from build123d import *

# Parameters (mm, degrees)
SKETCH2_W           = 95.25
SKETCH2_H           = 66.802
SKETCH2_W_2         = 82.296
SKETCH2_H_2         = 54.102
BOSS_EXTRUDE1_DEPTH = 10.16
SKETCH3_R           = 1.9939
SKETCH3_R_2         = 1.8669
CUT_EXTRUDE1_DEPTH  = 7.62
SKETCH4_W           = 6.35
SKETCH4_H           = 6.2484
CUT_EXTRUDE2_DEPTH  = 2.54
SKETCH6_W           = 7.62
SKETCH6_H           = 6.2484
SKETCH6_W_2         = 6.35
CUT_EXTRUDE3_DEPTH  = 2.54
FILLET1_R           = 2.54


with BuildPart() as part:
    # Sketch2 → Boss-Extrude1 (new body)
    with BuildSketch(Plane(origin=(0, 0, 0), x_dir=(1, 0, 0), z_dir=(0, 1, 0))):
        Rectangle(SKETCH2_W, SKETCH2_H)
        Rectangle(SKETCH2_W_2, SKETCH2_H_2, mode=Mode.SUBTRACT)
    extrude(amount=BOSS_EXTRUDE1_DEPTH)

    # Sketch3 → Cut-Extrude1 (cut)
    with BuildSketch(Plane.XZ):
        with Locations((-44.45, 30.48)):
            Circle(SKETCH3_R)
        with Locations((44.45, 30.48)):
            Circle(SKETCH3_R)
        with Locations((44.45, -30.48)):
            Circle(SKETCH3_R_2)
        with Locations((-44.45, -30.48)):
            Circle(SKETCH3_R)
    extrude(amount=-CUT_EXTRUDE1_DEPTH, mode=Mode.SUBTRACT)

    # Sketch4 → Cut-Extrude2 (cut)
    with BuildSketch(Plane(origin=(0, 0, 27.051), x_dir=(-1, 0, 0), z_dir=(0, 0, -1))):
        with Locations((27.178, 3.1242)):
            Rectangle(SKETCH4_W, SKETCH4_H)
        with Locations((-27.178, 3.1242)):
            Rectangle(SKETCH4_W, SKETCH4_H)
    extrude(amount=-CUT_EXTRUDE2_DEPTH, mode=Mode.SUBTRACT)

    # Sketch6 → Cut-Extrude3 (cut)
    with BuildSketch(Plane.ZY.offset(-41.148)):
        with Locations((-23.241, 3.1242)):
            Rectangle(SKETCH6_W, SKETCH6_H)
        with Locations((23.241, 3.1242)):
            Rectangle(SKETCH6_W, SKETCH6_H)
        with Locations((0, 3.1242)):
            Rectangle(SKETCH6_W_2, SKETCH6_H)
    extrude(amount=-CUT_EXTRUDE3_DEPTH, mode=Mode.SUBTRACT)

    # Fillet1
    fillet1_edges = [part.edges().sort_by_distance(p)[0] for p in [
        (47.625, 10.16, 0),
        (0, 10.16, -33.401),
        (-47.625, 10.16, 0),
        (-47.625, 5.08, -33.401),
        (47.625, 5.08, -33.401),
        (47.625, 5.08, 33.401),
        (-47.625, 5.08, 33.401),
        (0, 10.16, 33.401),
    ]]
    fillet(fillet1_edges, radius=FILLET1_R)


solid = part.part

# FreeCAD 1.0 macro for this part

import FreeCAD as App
import Part
import Sketcher
from FreeCAD import Vector
Q = App.Units.Quantity


def edges_at(feature, points):
    """Names of the edges that pass closest to the given points."""
    edges = feature.Shape.Edges
    near = lambda p: min(range(len(edges)), key=lambda i: edges[i].distToShape(Part.Vertex(*p))[0])
    return sorted({f"Edge{near(p) + 1}" for p in points})

doc = App.newDocument("Part")
body = doc.addObject("PartDesign::Body", "Body")

# Sketch on XZ plane
sketch1 = doc.addObject("Sketcher::SketchObject", "Sketch")
body.addObject(sketch1)
sketch1.AttachmentSupport = (doc.XZ_Plane, [""])
sketch1.MapMode = "FlatFace"
sketch1.addGeometry([
    Part.LineSegment(Vector(-48, -33, 0), Vector(-48, 33, 0)),  # 0
    Part.LineSegment(Vector(-48, 33, 0), Vector(48, 33, 0)),  # 1
    Part.LineSegment(Vector(48, 33, 0), Vector(48, -33, 0)),  # 2
    Part.LineSegment(Vector(48, -33, 0), Vector(-48, -33, 0)),  # 3
    Part.LineSegment(Vector(41, 27, 0), Vector(-41, 27, 0)),  # 4
    Part.LineSegment(Vector(-41, 27, 0), Vector(-41, -27, 0)),  # 5
    Part.LineSegment(Vector(-41, -27, 0), Vector(41, -27, 0)),  # 6
    Part.LineSegment(Vector(41, -27, 0), Vector(41, 27, 0)),  # 7
], False)
sketch1.addConstraint([
    Sketcher.Constraint("Coincident", 0, 2, 1, 1),
    Sketcher.Constraint("Coincident", 1, 2, 2, 1),
    Sketcher.Constraint("Coincident", 2, 2, 3, 1),
    Sketcher.Constraint("Coincident", 3, 2, 0, 1),
    Sketcher.Constraint("Coincident", 4, 2, 5, 1),
    Sketcher.Constraint("Coincident", 5, 2, 6, 1),
    Sketcher.Constraint("Coincident", 6, 2, 7, 1),
    Sketcher.Constraint("Coincident", 7, 2, 4, 1),
    Sketcher.Constraint("Vertical", 0),
    Sketcher.Constraint("Horizontal", 1),
    Sketcher.Constraint("Vertical", 2),
    Sketcher.Constraint("Horizontal", 3),
    Sketcher.Constraint("Horizontal", 4),
    Sketcher.Constraint("Vertical", 5),
    Sketcher.Constraint("Horizontal", 6),
    Sketcher.Constraint("Vertical", 7),
    Sketcher.Constraint("Symmetric", 0, 2, 2, 2, -1, 1),
    Sketcher.Constraint("Symmetric", 4, 2, 6, 2, -1, 1),
    Sketcher.Constraint("DistanceX", 1, 1, 1, 2, Q("3.75 in")),
    Sketcher.Constraint("DistanceX", 4, 2, 4, 1, Q("3.24 in")),
    Sketcher.Constraint("DistanceY", 0, 1, 0, 2, Q("2.63 in")),
    Sketcher.Constraint("DistanceY", 5, 2, 5, 1, Q("2.13 in")),
])
pad1 = doc.addObject("PartDesign::Pad", "Pad")
body.addObject(pad1)
pad1.Profile = sketch1
pad1.Length = Q("0.4 in")
pad1.Reversed = True

# Sketch on XZ plane
sketch2 = doc.addObject("Sketcher::SketchObject", "Sketch001")
body.addObject(sketch2)
sketch2.AttachmentSupport = (doc.XZ_Plane, [""])
sketch2.MapMode = "FlatFace"
sketch2.addGeometry([
    Part.Circle(Vector(-44.5, 30.5, 0), Vector(0, 0, 1), 2),
    Part.Circle(Vector(44.5, 30.5, 0), Vector(0, 0, 1), 2),
    Part.Circle(Vector(44.5, -30.5, 0), Vector(0, 0, 1), 1.9),
    Part.Circle(Vector(-44.5, -30.5, 0), Vector(0, 0, 1), 2),
], False)
sketch2.addConstraint([
    Sketcher.Constraint("Equal", 0, 1),
    Sketcher.Constraint("Equal", 1, 3),
    Sketcher.Constraint("Symmetric", 0, 3, 2, 3, -1, 1),
    Sketcher.Constraint("Symmetric", 1, 3, 3, 3, -1, 1),
    Sketcher.Constraint("Symmetric", 0, 3, 1, 3, -2),
    Sketcher.Constraint("Diameter", 0, Q("0.157 in")),
    Sketcher.Constraint("Diameter", 2, Q("0.147 in")),
    Sketcher.Constraint("DistanceY", -1, 1, 0, 3, Q("1.2 in")),
    Sketcher.Constraint("DistanceX", 0, 3, 1, 3, Q("3.5 in")),
])
pocket1 = doc.addObject("PartDesign::Pocket", "Pocket")
body.addObject(pocket1)
pocket1.Profile = sketch2
pocket1.Length = Q("0.3 in")

# Sketch on XY plane
sketch3 = doc.addObject("Sketcher::SketchObject", "Sketch002")
body.addObject(sketch3)
sketch3.AttachmentSupport = (doc.XY_Plane, [""])
sketch3.MapMode = "FlatFace"
sketch3.AttachmentOffset = App.Placement(Vector(0, 0, 1.065 * 25.4), App.Rotation())
sketch3.addGeometry([
    Part.LineSegment(Vector(-24, 6, 0), Vector(-24, 0, 0)),  # 0
    Part.LineSegment(Vector(-24, 0, 0), Vector(-30, 0, 0)),  # 1
    Part.LineSegment(Vector(-30, 0, 0), Vector(-30, 6, 0)),  # 2
    Part.LineSegment(Vector(-30, 6, 0), Vector(-24, 6, 0)),  # 3
    Part.LineSegment(Vector(30, 6, 0), Vector(30, 0, 0)),  # 4
    Part.LineSegment(Vector(30, 0, 0), Vector(24, 0, 0)),  # 5
    Part.LineSegment(Vector(24, 0, 0), Vector(24, 6, 0)),  # 6
    Part.LineSegment(Vector(24, 6, 0), Vector(30, 6, 0)),  # 7
], False)
sketch3.addConstraint([
    Sketcher.Constraint("Coincident", 0, 2, 1, 1),
    Sketcher.Constraint("Coincident", 1, 2, 2, 1),
    Sketcher.Constraint("Coincident", 2, 2, 3, 1),
    Sketcher.Constraint("Coincident", 3, 2, 0, 1),
    Sketcher.Constraint("Coincident", 4, 2, 5, 1),
    Sketcher.Constraint("Coincident", 5, 2, 6, 1),
    Sketcher.Constraint("Coincident", 6, 2, 7, 1),
    Sketcher.Constraint("Coincident", 7, 2, 4, 1),
    Sketcher.Constraint("Vertical", 0),
    Sketcher.Constraint("Horizontal", 1),
    Sketcher.Constraint("Vertical", 2),
    Sketcher.Constraint("Horizontal", 3),
    Sketcher.Constraint("Vertical", 4),
    Sketcher.Constraint("Horizontal", 5),
    Sketcher.Constraint("Vertical", 6),
    Sketcher.Constraint("Horizontal", 7),
    Sketcher.Constraint("Symmetric", 1, 2, 4, 2, -1, 1),
    Sketcher.Constraint("Symmetric", 0, 2, 5, 2, -2),
    Sketcher.Constraint("Horizontal", 3, 2, 6, 2),
    Sketcher.Constraint("DistanceX", 1, 2, 1, 1, Q("0.25 in")),
    Sketcher.Constraint("DistanceY", 0, 2, 0, 1, Q("0.246 in")),
    Sketcher.Constraint("DistanceX", 0, 2, 4, 2, Q("2.14 in")),
])
pocket2 = doc.addObject("PartDesign::Pocket", "Pocket001")
body.addObject(pocket2)
pocket2.Profile = sketch3
pocket2.Length = Q("0.1 in")
pocket2.Reversed = True

# Sketch on YZ plane
sketch4 = doc.addObject("Sketcher::SketchObject", "Sketch003")
body.addObject(sketch4)
sketch4.AttachmentSupport = (doc.YZ_Plane, [""])
sketch4.MapMode = "FlatFace"
sketch4.AttachmentOffset = App.Placement(Vector(0, 0, 1.62 * 25.4), App.Rotation())
sketch4.addGeometry([
    Part.LineSegment(Vector(6, -27, 0), Vector(0, -27, 0)),  # 0
    Part.LineSegment(Vector(0, -27, 0), Vector(0, -19, 0)),  # 1
    Part.LineSegment(Vector(0, -19, 0), Vector(6, -19, 0)),  # 2
    Part.LineSegment(Vector(6, -19, 0), Vector(6, -27, 0)),  # 3
    Part.LineSegment(Vector(6, 19, 0), Vector(0, 19, 0)),  # 4
    Part.LineSegment(Vector(0, 19, 0), Vector(0, 27, 0)),  # 5
    Part.LineSegment(Vector(0, 27, 0), Vector(6, 27, 0)),  # 6
    Part.LineSegment(Vector(6, 27, 0), Vector(6, 19, 0)),  # 7
    Part.LineSegment(Vector(6, -3, 0), Vector(0, -3, 0)),  # 8
    Part.LineSegment(Vector(0, -3, 0), Vector(0, 3, 0)),  # 9
    Part.LineSegment(Vector(0, 3, 0), Vector(6, 3, 0)),  # 10
    Part.LineSegment(Vector(6, 3, 0), Vector(6, -3, 0)),  # 11
], False)
sketch4.addConstraint([
    Sketcher.Constraint("Coincident", 0, 2, 1, 1),
    Sketcher.Constraint("Coincident", 1, 2, 2, 1),
    Sketcher.Constraint("Coincident", 2, 2, 3, 1),
    Sketcher.Constraint("Coincident", 3, 2, 0, 1),
    Sketcher.Constraint("Coincident", 4, 2, 5, 1),
    Sketcher.Constraint("Coincident", 5, 2, 6, 1),
    Sketcher.Constraint("Coincident", 6, 2, 7, 1),
    Sketcher.Constraint("Coincident", 7, 2, 4, 1),
    Sketcher.Constraint("Coincident", 8, 2, 9, 1),
    Sketcher.Constraint("Coincident", 9, 2, 10, 1),
    Sketcher.Constraint("Coincident", 10, 2, 11, 1),
    Sketcher.Constraint("Coincident", 11, 2, 8, 1),
    Sketcher.Constraint("Horizontal", 0),
    Sketcher.Constraint("Vertical", 1),
    Sketcher.Constraint("Horizontal", 2),
    Sketcher.Constraint("Vertical", 3),
    Sketcher.Constraint("Horizontal", 4),
    Sketcher.Constraint("Vertical", 5),
    Sketcher.Constraint("Horizontal", 6),
    Sketcher.Constraint("Vertical", 7),
    Sketcher.Constraint("Horizontal", 8),
    Sketcher.Constraint("Vertical", 9),
    Sketcher.Constraint("Horizontal", 10),
    Sketcher.Constraint("Vertical", 11),
    Sketcher.Constraint("Symmetric", 1, 2, 4, 2, -1, 1),
    Sketcher.Constraint("Symmetric", 8, 2, 9, 2, -1, 1),
    Sketcher.Constraint("Symmetric", 0, 2, 5, 2, -1),
    Sketcher.Constraint("Vertical", 3, 2, 6, 2),
    Sketcher.Constraint("Vertical", 7, 2, 10, 2),
    Sketcher.Constraint("DistanceY", 1, 1, 1, 2, Q("0.3 in")),
    Sketcher.Constraint("DistanceY", 9, 1, 9, 2, Q("0.25 in")),
    Sketcher.Constraint("DistanceX", 0, 2, 0, 1, Q("0.246 in")),
    Sketcher.Constraint("DistanceY", 1, 2, 4, 2, Q("1.53 in")),
])
pocket3 = doc.addObject("PartDesign::Pocket", "Pocket002")
body.addObject(pocket3)
pocket3.Profile = sketch4
pocket3.Length = Q("0.1 in")
pocket3.Reversed = True
doc.recompute()

fillet = doc.addObject("PartDesign::Fillet", "Fillet")
body.addObject(fillet)
fillet.Base = (pocket3, edges_at(pocket3, [
    (47.625, 10.16, 0),
    (0, 10.16, -33.401),
    (-47.625, 10.16, 0),
    (-47.625, 5.08, -33.401),
    (47.625, 5.08, -33.401),
    (47.625, 5.08, 33.401),
    (-47.625, 5.08, 33.401),
    (0, 10.16, 33.401),
]))
fillet.Radius = Q("0.1 in")

doc.recompute()
